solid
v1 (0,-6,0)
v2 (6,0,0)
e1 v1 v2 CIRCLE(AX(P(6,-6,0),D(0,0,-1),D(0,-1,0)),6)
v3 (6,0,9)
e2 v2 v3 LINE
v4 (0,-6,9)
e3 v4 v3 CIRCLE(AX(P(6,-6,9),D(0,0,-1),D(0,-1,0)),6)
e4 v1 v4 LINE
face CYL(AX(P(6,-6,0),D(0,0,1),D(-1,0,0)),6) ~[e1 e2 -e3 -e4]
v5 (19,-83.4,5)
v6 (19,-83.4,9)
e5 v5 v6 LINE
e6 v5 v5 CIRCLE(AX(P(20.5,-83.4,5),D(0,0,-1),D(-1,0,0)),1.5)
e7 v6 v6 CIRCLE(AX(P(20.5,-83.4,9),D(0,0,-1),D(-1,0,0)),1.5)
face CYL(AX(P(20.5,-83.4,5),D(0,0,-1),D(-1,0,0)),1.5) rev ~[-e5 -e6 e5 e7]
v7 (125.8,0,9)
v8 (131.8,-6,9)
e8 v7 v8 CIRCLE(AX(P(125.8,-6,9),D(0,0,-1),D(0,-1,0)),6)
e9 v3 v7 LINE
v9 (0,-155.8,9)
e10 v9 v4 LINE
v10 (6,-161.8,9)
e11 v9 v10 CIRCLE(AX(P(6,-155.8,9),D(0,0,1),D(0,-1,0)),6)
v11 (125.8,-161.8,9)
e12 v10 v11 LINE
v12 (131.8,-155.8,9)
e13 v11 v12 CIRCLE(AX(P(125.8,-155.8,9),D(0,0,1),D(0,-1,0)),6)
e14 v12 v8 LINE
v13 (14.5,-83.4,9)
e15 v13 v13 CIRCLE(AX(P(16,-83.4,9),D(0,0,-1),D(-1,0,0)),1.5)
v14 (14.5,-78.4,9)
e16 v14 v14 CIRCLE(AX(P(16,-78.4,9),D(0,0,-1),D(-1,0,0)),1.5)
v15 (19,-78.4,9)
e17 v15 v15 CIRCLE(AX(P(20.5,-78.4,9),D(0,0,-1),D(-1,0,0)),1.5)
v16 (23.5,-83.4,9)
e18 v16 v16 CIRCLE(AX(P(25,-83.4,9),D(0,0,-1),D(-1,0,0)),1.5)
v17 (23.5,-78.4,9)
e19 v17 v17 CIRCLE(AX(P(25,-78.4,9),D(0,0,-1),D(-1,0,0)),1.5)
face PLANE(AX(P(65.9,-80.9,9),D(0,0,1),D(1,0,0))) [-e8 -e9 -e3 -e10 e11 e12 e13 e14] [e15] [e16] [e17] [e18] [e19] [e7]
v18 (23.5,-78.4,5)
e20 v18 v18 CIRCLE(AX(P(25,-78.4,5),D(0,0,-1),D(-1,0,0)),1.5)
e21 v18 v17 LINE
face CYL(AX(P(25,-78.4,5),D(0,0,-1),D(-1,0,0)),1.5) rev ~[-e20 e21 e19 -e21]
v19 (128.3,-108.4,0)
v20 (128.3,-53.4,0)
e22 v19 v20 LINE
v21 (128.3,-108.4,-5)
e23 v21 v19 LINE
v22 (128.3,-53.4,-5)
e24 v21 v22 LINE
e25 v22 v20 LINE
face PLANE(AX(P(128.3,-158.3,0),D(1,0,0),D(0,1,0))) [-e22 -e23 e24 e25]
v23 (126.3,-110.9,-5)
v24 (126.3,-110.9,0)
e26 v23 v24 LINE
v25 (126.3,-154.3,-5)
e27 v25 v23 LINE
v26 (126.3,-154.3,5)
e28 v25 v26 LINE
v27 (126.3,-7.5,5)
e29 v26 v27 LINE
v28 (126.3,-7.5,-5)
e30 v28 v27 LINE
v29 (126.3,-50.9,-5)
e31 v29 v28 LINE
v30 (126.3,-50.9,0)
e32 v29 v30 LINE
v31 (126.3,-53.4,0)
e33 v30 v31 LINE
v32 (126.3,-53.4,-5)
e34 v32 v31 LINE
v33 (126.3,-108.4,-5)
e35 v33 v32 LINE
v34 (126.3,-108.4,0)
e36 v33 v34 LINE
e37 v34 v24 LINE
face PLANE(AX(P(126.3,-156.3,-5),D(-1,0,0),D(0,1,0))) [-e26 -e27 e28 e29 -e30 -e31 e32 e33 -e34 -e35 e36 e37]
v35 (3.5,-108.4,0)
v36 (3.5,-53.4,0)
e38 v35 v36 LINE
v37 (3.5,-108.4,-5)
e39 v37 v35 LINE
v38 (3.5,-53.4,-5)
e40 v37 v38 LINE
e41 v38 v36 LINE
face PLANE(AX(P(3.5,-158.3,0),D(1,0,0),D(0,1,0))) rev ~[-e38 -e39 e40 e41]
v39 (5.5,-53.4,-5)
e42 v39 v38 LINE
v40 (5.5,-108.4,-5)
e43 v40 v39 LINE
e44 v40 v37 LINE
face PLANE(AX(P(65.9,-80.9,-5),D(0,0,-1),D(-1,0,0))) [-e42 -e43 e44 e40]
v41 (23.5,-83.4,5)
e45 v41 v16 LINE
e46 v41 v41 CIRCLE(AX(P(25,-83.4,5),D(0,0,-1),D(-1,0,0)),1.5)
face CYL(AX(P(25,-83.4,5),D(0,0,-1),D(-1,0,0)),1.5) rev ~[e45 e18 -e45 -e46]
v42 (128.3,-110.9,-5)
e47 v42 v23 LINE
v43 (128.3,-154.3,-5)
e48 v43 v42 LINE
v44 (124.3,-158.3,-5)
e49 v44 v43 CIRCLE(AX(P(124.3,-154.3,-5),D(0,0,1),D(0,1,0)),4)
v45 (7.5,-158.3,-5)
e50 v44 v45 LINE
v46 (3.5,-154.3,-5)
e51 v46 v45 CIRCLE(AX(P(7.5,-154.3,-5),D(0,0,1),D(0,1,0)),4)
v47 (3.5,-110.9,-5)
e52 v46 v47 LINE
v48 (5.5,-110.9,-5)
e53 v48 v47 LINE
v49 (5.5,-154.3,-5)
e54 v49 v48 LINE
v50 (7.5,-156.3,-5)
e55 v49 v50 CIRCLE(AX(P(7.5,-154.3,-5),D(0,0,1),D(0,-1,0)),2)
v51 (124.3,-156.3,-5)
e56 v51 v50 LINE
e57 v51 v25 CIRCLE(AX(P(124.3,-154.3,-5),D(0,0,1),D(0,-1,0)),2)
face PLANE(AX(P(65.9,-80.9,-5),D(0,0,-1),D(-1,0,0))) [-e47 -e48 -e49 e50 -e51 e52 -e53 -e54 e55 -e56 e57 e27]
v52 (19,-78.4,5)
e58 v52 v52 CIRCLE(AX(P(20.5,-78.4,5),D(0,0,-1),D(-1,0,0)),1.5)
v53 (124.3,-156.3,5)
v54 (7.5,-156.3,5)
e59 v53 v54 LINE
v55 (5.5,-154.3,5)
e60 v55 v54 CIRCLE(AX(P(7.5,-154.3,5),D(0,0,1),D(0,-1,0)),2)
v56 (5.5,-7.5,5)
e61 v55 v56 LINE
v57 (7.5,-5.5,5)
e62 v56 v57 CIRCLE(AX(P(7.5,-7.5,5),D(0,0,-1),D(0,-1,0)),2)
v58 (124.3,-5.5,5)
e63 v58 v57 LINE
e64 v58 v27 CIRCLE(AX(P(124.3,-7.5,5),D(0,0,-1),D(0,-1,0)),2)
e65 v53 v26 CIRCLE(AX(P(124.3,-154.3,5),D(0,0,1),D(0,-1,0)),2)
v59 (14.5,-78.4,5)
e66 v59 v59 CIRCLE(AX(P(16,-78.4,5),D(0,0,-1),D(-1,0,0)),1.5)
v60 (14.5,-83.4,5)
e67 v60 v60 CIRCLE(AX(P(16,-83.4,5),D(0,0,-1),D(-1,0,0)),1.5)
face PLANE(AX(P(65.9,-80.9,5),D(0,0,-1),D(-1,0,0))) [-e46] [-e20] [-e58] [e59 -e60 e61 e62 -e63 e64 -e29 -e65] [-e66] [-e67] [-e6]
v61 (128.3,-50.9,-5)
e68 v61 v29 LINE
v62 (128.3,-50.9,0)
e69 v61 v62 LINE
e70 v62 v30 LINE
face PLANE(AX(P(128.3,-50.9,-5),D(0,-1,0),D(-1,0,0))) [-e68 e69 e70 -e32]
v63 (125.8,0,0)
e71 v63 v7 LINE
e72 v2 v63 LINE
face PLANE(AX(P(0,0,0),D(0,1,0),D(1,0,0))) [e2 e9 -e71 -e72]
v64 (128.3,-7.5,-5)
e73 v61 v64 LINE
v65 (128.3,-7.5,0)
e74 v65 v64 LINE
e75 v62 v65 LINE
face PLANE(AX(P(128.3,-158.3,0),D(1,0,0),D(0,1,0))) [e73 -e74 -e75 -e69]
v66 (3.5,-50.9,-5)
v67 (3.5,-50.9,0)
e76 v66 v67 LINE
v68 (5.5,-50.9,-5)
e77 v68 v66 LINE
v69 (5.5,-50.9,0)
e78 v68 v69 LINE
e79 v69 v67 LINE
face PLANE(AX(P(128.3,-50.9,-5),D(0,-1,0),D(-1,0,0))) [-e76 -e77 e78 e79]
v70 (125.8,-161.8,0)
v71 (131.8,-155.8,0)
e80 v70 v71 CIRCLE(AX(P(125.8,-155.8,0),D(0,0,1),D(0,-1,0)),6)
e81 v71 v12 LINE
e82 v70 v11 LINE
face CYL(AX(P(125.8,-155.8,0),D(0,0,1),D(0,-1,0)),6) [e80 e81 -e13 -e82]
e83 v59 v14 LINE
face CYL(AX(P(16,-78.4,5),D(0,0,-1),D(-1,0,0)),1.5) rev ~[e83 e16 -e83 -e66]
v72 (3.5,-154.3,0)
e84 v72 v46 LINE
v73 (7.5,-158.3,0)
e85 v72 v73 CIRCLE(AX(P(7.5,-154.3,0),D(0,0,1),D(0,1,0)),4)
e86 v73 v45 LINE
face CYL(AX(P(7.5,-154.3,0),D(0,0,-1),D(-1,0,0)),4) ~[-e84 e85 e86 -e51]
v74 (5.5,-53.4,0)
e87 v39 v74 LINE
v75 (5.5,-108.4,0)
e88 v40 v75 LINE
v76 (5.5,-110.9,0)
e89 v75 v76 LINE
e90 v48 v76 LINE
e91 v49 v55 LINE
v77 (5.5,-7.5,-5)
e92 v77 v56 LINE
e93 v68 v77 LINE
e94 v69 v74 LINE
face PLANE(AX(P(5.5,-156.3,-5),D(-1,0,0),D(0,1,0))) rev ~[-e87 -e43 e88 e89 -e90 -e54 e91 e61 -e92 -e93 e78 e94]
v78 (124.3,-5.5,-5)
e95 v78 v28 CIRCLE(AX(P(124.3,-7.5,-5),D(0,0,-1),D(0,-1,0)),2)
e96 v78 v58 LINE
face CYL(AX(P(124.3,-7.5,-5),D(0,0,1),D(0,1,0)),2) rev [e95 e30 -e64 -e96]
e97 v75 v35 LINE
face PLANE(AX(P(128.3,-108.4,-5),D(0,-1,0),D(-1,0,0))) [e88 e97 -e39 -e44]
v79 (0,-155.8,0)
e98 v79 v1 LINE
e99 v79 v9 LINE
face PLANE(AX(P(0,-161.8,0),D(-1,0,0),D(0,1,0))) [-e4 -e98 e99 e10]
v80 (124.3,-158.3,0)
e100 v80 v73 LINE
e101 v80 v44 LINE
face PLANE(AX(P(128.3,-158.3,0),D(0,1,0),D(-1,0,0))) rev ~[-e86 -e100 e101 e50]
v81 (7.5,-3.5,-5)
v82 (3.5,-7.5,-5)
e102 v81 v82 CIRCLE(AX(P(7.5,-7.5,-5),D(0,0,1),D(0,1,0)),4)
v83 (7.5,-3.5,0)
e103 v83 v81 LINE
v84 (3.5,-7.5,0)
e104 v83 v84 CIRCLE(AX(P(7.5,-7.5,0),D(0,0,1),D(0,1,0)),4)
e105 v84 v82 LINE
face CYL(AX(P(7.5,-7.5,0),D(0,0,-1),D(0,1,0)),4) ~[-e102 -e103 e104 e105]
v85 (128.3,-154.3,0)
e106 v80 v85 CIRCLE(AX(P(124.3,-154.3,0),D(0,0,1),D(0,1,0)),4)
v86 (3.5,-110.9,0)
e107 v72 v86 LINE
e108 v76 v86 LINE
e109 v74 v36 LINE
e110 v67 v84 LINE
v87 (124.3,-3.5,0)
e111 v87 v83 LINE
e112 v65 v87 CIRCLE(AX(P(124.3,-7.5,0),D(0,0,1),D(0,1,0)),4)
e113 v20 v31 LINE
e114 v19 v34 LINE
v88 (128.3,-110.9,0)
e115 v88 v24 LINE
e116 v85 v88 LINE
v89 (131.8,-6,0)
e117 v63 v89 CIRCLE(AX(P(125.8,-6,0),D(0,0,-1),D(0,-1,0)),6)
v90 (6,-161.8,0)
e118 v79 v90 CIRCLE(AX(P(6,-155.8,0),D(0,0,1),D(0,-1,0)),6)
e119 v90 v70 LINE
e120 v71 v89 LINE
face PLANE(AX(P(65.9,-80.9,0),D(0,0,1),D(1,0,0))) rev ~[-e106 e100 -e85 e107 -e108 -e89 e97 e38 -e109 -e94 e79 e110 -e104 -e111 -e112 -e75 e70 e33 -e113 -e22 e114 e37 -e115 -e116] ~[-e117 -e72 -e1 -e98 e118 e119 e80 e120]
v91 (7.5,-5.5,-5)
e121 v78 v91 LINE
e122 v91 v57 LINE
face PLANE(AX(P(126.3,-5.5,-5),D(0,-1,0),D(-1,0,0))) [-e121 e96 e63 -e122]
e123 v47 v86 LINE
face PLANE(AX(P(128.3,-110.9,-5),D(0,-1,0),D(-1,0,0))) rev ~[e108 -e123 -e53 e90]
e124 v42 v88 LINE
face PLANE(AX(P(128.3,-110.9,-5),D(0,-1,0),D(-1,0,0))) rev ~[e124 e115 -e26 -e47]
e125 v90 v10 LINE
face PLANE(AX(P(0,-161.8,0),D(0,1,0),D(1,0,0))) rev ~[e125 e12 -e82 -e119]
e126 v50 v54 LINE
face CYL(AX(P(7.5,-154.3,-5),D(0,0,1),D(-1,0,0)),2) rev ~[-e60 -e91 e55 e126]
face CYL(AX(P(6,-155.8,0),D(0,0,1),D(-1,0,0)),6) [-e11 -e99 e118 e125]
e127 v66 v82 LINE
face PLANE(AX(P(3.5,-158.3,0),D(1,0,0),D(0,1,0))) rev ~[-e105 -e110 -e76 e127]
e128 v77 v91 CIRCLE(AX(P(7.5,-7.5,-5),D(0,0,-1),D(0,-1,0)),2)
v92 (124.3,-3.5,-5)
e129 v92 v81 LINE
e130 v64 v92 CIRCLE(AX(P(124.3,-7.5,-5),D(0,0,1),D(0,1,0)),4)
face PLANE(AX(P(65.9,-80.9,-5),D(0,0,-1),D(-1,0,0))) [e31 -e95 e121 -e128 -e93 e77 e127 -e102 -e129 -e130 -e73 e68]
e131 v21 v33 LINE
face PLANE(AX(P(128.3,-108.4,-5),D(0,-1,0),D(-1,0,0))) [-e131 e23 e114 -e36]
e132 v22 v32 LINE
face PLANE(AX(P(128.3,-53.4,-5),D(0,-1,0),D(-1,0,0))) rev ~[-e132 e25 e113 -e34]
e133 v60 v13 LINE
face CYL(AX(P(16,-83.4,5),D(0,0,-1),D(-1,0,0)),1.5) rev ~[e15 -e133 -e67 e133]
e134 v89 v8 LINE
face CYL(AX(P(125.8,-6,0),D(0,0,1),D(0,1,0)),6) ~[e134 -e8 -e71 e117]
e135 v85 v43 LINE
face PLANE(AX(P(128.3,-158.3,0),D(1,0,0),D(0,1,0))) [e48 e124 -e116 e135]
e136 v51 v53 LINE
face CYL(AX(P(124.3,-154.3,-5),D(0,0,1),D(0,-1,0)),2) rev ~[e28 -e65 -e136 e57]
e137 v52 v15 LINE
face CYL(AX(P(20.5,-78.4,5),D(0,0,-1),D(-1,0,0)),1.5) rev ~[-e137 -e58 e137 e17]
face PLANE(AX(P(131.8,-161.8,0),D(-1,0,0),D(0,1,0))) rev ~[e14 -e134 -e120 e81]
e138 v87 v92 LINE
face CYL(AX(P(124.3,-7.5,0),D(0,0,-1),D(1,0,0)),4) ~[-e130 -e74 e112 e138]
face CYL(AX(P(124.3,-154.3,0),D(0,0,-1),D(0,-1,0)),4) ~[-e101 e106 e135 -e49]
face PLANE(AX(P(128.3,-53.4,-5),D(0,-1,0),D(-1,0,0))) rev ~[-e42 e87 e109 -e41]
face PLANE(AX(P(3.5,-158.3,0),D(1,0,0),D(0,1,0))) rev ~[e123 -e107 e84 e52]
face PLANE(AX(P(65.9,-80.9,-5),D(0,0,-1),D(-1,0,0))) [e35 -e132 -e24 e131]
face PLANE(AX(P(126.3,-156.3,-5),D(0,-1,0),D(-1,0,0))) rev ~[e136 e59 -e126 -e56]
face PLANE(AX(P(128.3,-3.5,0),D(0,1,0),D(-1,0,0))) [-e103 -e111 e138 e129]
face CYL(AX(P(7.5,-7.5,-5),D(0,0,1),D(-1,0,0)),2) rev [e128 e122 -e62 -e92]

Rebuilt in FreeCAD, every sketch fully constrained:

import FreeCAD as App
import Part
import Sketcher

V = App.Vector


def edges_at(feature, points):
    """Names of the edges that pass closest to the given points."""
    edges = feature.Shape.Edges
    near = lambda p: min(range(len(edges)), key=lambda i: edges[i].distToShape(Part.Vertex(*p))[0])
    return sorted({f"Edge{near(p) + 1}" for p in points})

doc = App.newDocument("Part")
body = doc.addObject("PartDesign::Body", "Body")

sketch1 = doc.addObject("Sketcher::SketchObject", "Sketch")
body.addObject(sketch1)
sketch1.AttachmentSupport = (doc.XY_Plane, [""])
sketch1.MapMode = "FlatFace"
sketch1.addGeometry([
    Part.LineSegment(V(0, 0, 0), V(0, -161.8, 0)),
    Part.LineSegment(V(0, -161.8, 0), V(131.8, -161.8, 0)),
    Part.LineSegment(V(131.8, -161.8, 0), V(131.8, 0, 0)),
    Part.LineSegment(V(131.8, 0, 0), V(0, 0, 0)),
], False)
sketch1.addConstraint([
    Sketcher.Constraint("Coincident", 0, 2, 1, 1),
    Sketcher.Constraint("Coincident", 1, 2, 2, 1),
    Sketcher.Constraint("Coincident", 2, 2, 3, 1),
    Sketcher.Constraint("Coincident", 3, 2, 0, 1),
    Sketcher.Constraint("Vertical", 0),
    Sketcher.Constraint("Horizontal", 1),
    Sketcher.Constraint("Vertical", 2),
    Sketcher.Constraint("Horizontal", 3),
    Sketcher.Constraint("Coincident", 3, 2, -1, 1),
    Sketcher.Constraint("DistanceX", 1, 1, 1, 2, 131.8),
    Sketcher.Constraint("DistanceY", 0, 2, 0, 1, 161.8),
])
pad1 = doc.addObject("PartDesign::Pad", "Pad")
body.addObject(pad1)
pad1.Profile = sketch1
pad1.Length = 9

sketch2 = doc.addObject("Sketcher::SketchObject", "Sketch001")
body.addObject(sketch2)
sketch2.AttachmentSupport = (doc.XY_Plane, [""])
sketch2.MapMode = "FlatFace"
sketch2.addGeometry([
    Part.LineSegment(V(128.3, -3.5, 0), V(128.3, -158.3, 0)),
    Part.LineSegment(V(128.3, -158.3, 0), V(3.5, -158.3, 0)),
    Part.LineSegment(V(3.5, -158.3, 0), V(3.5, -3.5, 0)),
    Part.LineSegment(V(3.5, -3.5, 0), V(128.3, -3.5, 0)),
], False)
sketch2.addConstraint([
    Sketcher.Constraint("Coincident", 0, 2, 1, 1),
    Sketcher.Constraint("Coincident", 1, 2, 2, 1),
    Sketcher.Constraint("Coincident", 2, 2, 3, 1),
    Sketcher.Constraint("Coincident", 3, 2, 0, 1),
    Sketcher.Constraint("Vertical", 0),
    Sketcher.Constraint("Horizontal", 1),
    Sketcher.Constraint("Vertical", 2),
    Sketcher.Constraint("Horizontal", 3),
    Sketcher.Constraint("DistanceX", 1, 2, 1, 1, 124.8),
    Sketcher.Constraint("DistanceY", 0, 2, 0, 1, 154.8),
    Sketcher.Constraint("DistanceX", -1, 1, 0, 2, 128.3),
    Sketcher.Constraint("DistanceY", 0, 2, -1, 1, 158.3),
])
pad2 = doc.addObject("PartDesign::Pad", "Pad001")
body.addObject(pad2)
pad2.Profile = sketch2
pad2.Length = 5
pad2.Reversed = True

sketch3 = doc.addObject("Sketcher::SketchObject", "Sketch002")
body.addObject(sketch3)
sketch3.AttachmentSupport = (doc.XY_Plane, [""])
sketch3.MapMode = "FlatFace"
sketch3.AttachmentOffset = App.Placement(V(0, 0, -5), App.Rotation())
sketch3.addGeometry([
    Part.LineSegment(V(126.3, -5.5, 0), V(126.3, -156.3, 0)),
    Part.LineSegment(V(126.3, -156.3, 0), V(5.5, -156.3, 0)),
    Part.LineSegment(V(5.5, -156.3, 0), V(5.5, -5.5, 0)),
    Part.LineSegment(V(5.5, -5.5, 0), V(126.3, -5.5, 0)),
], False)
sketch3.addConstraint([
    Sketcher.Constraint("Coincident", 0, 2, 1, 1),
    Sketcher.Constraint("Coincident", 1, 2, 2, 1),
    Sketcher.Constraint("Coincident", 2, 2, 3, 1),
    Sketcher.Constraint("Coincident", 3, 2, 0, 1),
    Sketcher.Constraint("Vertical", 0),
    Sketcher.Constraint("Horizontal", 1),
    Sketcher.Constraint("Vertical", 2),
    Sketcher.Constraint("Horizontal", 3),
    Sketcher.Constraint("DistanceX", 1, 2, 1, 1, 120.8),
    Sketcher.Constraint("DistanceY", 0, 2, 0, 1, 150.8),
    Sketcher.Constraint("DistanceX", -1, 1, 0, 2, 126.3),
    Sketcher.Constraint("DistanceY", 0, 2, -1, 1, 156.3),
])
pocket1 = doc.addObject("PartDesign::Pocket", "Pocket")
body.addObject(pocket1)
pocket1.Profile = sketch3
pocket1.Length = 10
pocket1.Reversed = True
doc.recompute()

fillet = doc.addObject("PartDesign::Fillet", "Fillet")
body.addObject(fillet)
fillet.Base = (pocket1, edges_at(pocket1, [(128.3, -3.5, -2.5)]))
fillet.Radius = 4
doc.recompute()

fillet2 = doc.addObject("PartDesign::Fillet", "Fillet001")
body.addObject(fillet2)
fillet2.Base = (fillet, edges_at(fillet, [(5.5, -5.5, 0)]))
fillet2.Radius = 2
doc.recompute()

fillet3 = doc.addObject("PartDesign::Fillet", "Fillet002")
body.addObject(fillet3)
fillet3.Base = (fillet2, edges_at(fillet2, [(3.5, -3.5, -2.5)]))
fillet3.Radius = 4
doc.recompute()

fillet4 = doc.addObject("PartDesign::Fillet", "Fillet003")
body.addObject(fillet4)
fillet4.Base = (fillet3, edges_at(fillet3, [(3.5, -158.3, -2.5)]))
fillet4.Radius = 4
doc.recompute()

fillet5 = doc.addObject("PartDesign::Fillet", "Fillet004")
body.addObject(fillet5)
fillet5.Base = (fillet4, edges_at(fillet4, [(5.5, -156.3, 0)]))
fillet5.Radius = 2
doc.recompute()

fillet6 = doc.addObject("PartDesign::Fillet", "Fillet005")
body.addObject(fillet6)
fillet6.Base = (fillet5, edges_at(fillet5, [(128.3, -158.3, -2.5)]))
fillet6.Radius = 4
doc.recompute()

fillet7 = doc.addObject("PartDesign::Fillet", "Fillet006")
body.addObject(fillet7)
fillet7.Base = (fillet6, edges_at(fillet6, [(126.3, -156.3, 0), (126.3, -5.5, 0)]))
fillet7.Radius = 2
doc.recompute()

fillet8 = doc.addObject("PartDesign::Fillet", "Fillet007")
body.addObject(fillet8)
fillet8.Base = (fillet7, edges_at(fillet7, [
    (0, 0, 4.5),
    (131.8, 0, 4.5),
    (131.8, -161.8, 4.5),
    (0, -161.8, 4.5),
]))
fillet8.Radius = 6

sketch4 = doc.addObject("Sketcher::SketchObject", "Sketch003")
body.addObject(sketch4)
sketch4.AttachmentSupport = (doc.XY_Plane, [""])
sketch4.MapMode = "FlatFace"
sketch4.AttachmentOffset = App.Placement(V(0, 0, -5), App.Rotation())
sketch4.addGeometry([
    Part.LineSegment(V(128.3, -50.9, 0), V(128.3, -53.4, 0)),
    Part.LineSegment(V(128.3, -53.4, 0), V(3.5, -53.4, 0)),
    Part.LineSegment(V(3.5, -53.4, 0), V(3.5, -50.9, 0)),
    Part.LineSegment(V(3.5, -50.9, 0), V(128.3, -50.9, 0)),
    Part.LineSegment(V(128.3, -108.4, 0), V(128.3, -110.9, 0)),
    Part.LineSegment(V(128.3, -110.9, 0), V(3.5, -110.9, 0)),
    Part.LineSegment(V(3.5, -110.9, 0), V(3.5, -108.4, 0)),
    Part.LineSegment(V(3.5, -108.4, 0), V(128.3, -108.4, 0)),
], False)
sketch4.addConstraint([
    Sketcher.Constraint("Coincident", 0, 2, 1, 1),
    Sketcher.Constraint("Coincident", 1, 2, 2, 1),
    Sketcher.Constraint("Coincident", 2, 2, 3, 1),
    Sketcher.Constraint("Coincident", 3, 2, 0, 1),
    Sketcher.Constraint("Coincident", 4, 2, 5, 1),
    Sketcher.Constraint("Coincident", 5, 2, 6, 1),
    Sketcher.Constraint("Coincident", 6, 2, 7, 1),
    Sketcher.Constraint("Coincident", 7, 2, 4, 1),
    Sketcher.Constraint("Vertical", 0),
    Sketcher.Constraint("Horizontal", 1),
    Sketcher.Constraint("Vertical", 2),
    Sketcher.Constraint("Horizontal", 3),
    Sketcher.Constraint("Vertical", 4),
    Sketcher.Constraint("Horizontal", 5),
    Sketcher.Constraint("Vertical", 6),
    Sketcher.Constraint("Horizontal", 7),
    Sketcher.Constraint("Vertical", 3, 2, 4, 2),
    Sketcher.Constraint("Vertical", 2, 2, 5, 2),
    Sketcher.Constraint("Equal", 2, 4),
    Sketcher.Constraint("DistanceX", 1, 2, 1, 1, 124.8),
    Sketcher.Constraint("DistanceY", 0, 2, 0, 1, 2.5),
    Sketcher.Constraint("DistanceY", 4, 2, 3, 2, 60.0),
    Sketcher.Constraint("DistanceX", -1, 1, 0, 2, 128.3),
    Sketcher.Constraint("DistanceY", 0, 2, -1, 1, 53.4),
])
pocket2 = doc.addObject("PartDesign::Pocket", "Pocket001")
body.addObject(pocket2)
pocket2.Profile = sketch4
pocket2.Length = 5
pocket2.Reversed = True

sketch5 = doc.addObject("Sketcher::SketchObject", "Sketch004")
body.addObject(sketch5)
sketch5.AttachmentSupport = (doc.XY_Plane, [""])
sketch5.MapMode = "FlatFace"
sketch5.AttachmentOffset = App.Placement(V(0, 0, 5), App.Rotation())
sketch5.addGeometry([
    Part.Circle(V(25, -78.4, 0), V(0, 0, 1), 1.5),
    Part.Circle(V(25, -83.4, 0), V(0, 0, 1), 1.5),
    Part.Circle(V(20.5, -83.4, 0), V(0, 0, 1), 1.5),
    Part.Circle(V(16, -83.4, 0), V(0, 0, 1), 1.5),
    Part.Circle(V(20.5, -78.4, 0), V(0, 0, 1), 1.5),
    Part.Circle(V(16, -78.4, 0), V(0, 0, 1), 1.5),
], False)
sketch5.addConstraint([
    Sketcher.Constraint("Equal", 0, 1),
    Sketcher.Constraint("Equal", 1, 2),
    Sketcher.Constraint("Equal", 2, 3),
    Sketcher.Constraint("Equal", 3, 4),
    Sketcher.Constraint("Equal", 4, 5),
    Sketcher.Constraint("Horizontal", 1, 3, 2, 3),
    Sketcher.Constraint("Horizontal", 2, 3, 3, 3),
    Sketcher.Constraint("Horizontal", 0, 3, 4, 3),
    Sketcher.Constraint("Horizontal", 4, 3, 5, 3),
    Sketcher.Constraint("Vertical", 0, 3, 1, 3),
    Sketcher.Constraint("Vertical", 2, 3, 4, 3),
    Sketcher.Constraint("Vertical", 3, 3, 5, 3),
    Sketcher.Constraint("Diameter", 0, 3.0),
    Sketcher.Constraint("DistanceX", -1, 1, 0, 3, 25.0),
    Sketcher.Constraint("DistanceX", -1, 1, 3, 3, 16.0),
    Sketcher.Constraint("DistanceY", 1, 3, 0, 3, 5.0),
    Sketcher.Constraint("DistanceY", 0, 3, -1, 1, 78.4),
    Sketcher.Constraint("DistanceX", -1, 1, 2, 3, 20.5),
])
pocket3 = doc.addObject("PartDesign::Pocket", "Pocket002")
body.addObject(pocket3)
pocket3.Profile = sketch5
pocket3.Length = 9
pocket3.Reversed = True

doc.recompute()
